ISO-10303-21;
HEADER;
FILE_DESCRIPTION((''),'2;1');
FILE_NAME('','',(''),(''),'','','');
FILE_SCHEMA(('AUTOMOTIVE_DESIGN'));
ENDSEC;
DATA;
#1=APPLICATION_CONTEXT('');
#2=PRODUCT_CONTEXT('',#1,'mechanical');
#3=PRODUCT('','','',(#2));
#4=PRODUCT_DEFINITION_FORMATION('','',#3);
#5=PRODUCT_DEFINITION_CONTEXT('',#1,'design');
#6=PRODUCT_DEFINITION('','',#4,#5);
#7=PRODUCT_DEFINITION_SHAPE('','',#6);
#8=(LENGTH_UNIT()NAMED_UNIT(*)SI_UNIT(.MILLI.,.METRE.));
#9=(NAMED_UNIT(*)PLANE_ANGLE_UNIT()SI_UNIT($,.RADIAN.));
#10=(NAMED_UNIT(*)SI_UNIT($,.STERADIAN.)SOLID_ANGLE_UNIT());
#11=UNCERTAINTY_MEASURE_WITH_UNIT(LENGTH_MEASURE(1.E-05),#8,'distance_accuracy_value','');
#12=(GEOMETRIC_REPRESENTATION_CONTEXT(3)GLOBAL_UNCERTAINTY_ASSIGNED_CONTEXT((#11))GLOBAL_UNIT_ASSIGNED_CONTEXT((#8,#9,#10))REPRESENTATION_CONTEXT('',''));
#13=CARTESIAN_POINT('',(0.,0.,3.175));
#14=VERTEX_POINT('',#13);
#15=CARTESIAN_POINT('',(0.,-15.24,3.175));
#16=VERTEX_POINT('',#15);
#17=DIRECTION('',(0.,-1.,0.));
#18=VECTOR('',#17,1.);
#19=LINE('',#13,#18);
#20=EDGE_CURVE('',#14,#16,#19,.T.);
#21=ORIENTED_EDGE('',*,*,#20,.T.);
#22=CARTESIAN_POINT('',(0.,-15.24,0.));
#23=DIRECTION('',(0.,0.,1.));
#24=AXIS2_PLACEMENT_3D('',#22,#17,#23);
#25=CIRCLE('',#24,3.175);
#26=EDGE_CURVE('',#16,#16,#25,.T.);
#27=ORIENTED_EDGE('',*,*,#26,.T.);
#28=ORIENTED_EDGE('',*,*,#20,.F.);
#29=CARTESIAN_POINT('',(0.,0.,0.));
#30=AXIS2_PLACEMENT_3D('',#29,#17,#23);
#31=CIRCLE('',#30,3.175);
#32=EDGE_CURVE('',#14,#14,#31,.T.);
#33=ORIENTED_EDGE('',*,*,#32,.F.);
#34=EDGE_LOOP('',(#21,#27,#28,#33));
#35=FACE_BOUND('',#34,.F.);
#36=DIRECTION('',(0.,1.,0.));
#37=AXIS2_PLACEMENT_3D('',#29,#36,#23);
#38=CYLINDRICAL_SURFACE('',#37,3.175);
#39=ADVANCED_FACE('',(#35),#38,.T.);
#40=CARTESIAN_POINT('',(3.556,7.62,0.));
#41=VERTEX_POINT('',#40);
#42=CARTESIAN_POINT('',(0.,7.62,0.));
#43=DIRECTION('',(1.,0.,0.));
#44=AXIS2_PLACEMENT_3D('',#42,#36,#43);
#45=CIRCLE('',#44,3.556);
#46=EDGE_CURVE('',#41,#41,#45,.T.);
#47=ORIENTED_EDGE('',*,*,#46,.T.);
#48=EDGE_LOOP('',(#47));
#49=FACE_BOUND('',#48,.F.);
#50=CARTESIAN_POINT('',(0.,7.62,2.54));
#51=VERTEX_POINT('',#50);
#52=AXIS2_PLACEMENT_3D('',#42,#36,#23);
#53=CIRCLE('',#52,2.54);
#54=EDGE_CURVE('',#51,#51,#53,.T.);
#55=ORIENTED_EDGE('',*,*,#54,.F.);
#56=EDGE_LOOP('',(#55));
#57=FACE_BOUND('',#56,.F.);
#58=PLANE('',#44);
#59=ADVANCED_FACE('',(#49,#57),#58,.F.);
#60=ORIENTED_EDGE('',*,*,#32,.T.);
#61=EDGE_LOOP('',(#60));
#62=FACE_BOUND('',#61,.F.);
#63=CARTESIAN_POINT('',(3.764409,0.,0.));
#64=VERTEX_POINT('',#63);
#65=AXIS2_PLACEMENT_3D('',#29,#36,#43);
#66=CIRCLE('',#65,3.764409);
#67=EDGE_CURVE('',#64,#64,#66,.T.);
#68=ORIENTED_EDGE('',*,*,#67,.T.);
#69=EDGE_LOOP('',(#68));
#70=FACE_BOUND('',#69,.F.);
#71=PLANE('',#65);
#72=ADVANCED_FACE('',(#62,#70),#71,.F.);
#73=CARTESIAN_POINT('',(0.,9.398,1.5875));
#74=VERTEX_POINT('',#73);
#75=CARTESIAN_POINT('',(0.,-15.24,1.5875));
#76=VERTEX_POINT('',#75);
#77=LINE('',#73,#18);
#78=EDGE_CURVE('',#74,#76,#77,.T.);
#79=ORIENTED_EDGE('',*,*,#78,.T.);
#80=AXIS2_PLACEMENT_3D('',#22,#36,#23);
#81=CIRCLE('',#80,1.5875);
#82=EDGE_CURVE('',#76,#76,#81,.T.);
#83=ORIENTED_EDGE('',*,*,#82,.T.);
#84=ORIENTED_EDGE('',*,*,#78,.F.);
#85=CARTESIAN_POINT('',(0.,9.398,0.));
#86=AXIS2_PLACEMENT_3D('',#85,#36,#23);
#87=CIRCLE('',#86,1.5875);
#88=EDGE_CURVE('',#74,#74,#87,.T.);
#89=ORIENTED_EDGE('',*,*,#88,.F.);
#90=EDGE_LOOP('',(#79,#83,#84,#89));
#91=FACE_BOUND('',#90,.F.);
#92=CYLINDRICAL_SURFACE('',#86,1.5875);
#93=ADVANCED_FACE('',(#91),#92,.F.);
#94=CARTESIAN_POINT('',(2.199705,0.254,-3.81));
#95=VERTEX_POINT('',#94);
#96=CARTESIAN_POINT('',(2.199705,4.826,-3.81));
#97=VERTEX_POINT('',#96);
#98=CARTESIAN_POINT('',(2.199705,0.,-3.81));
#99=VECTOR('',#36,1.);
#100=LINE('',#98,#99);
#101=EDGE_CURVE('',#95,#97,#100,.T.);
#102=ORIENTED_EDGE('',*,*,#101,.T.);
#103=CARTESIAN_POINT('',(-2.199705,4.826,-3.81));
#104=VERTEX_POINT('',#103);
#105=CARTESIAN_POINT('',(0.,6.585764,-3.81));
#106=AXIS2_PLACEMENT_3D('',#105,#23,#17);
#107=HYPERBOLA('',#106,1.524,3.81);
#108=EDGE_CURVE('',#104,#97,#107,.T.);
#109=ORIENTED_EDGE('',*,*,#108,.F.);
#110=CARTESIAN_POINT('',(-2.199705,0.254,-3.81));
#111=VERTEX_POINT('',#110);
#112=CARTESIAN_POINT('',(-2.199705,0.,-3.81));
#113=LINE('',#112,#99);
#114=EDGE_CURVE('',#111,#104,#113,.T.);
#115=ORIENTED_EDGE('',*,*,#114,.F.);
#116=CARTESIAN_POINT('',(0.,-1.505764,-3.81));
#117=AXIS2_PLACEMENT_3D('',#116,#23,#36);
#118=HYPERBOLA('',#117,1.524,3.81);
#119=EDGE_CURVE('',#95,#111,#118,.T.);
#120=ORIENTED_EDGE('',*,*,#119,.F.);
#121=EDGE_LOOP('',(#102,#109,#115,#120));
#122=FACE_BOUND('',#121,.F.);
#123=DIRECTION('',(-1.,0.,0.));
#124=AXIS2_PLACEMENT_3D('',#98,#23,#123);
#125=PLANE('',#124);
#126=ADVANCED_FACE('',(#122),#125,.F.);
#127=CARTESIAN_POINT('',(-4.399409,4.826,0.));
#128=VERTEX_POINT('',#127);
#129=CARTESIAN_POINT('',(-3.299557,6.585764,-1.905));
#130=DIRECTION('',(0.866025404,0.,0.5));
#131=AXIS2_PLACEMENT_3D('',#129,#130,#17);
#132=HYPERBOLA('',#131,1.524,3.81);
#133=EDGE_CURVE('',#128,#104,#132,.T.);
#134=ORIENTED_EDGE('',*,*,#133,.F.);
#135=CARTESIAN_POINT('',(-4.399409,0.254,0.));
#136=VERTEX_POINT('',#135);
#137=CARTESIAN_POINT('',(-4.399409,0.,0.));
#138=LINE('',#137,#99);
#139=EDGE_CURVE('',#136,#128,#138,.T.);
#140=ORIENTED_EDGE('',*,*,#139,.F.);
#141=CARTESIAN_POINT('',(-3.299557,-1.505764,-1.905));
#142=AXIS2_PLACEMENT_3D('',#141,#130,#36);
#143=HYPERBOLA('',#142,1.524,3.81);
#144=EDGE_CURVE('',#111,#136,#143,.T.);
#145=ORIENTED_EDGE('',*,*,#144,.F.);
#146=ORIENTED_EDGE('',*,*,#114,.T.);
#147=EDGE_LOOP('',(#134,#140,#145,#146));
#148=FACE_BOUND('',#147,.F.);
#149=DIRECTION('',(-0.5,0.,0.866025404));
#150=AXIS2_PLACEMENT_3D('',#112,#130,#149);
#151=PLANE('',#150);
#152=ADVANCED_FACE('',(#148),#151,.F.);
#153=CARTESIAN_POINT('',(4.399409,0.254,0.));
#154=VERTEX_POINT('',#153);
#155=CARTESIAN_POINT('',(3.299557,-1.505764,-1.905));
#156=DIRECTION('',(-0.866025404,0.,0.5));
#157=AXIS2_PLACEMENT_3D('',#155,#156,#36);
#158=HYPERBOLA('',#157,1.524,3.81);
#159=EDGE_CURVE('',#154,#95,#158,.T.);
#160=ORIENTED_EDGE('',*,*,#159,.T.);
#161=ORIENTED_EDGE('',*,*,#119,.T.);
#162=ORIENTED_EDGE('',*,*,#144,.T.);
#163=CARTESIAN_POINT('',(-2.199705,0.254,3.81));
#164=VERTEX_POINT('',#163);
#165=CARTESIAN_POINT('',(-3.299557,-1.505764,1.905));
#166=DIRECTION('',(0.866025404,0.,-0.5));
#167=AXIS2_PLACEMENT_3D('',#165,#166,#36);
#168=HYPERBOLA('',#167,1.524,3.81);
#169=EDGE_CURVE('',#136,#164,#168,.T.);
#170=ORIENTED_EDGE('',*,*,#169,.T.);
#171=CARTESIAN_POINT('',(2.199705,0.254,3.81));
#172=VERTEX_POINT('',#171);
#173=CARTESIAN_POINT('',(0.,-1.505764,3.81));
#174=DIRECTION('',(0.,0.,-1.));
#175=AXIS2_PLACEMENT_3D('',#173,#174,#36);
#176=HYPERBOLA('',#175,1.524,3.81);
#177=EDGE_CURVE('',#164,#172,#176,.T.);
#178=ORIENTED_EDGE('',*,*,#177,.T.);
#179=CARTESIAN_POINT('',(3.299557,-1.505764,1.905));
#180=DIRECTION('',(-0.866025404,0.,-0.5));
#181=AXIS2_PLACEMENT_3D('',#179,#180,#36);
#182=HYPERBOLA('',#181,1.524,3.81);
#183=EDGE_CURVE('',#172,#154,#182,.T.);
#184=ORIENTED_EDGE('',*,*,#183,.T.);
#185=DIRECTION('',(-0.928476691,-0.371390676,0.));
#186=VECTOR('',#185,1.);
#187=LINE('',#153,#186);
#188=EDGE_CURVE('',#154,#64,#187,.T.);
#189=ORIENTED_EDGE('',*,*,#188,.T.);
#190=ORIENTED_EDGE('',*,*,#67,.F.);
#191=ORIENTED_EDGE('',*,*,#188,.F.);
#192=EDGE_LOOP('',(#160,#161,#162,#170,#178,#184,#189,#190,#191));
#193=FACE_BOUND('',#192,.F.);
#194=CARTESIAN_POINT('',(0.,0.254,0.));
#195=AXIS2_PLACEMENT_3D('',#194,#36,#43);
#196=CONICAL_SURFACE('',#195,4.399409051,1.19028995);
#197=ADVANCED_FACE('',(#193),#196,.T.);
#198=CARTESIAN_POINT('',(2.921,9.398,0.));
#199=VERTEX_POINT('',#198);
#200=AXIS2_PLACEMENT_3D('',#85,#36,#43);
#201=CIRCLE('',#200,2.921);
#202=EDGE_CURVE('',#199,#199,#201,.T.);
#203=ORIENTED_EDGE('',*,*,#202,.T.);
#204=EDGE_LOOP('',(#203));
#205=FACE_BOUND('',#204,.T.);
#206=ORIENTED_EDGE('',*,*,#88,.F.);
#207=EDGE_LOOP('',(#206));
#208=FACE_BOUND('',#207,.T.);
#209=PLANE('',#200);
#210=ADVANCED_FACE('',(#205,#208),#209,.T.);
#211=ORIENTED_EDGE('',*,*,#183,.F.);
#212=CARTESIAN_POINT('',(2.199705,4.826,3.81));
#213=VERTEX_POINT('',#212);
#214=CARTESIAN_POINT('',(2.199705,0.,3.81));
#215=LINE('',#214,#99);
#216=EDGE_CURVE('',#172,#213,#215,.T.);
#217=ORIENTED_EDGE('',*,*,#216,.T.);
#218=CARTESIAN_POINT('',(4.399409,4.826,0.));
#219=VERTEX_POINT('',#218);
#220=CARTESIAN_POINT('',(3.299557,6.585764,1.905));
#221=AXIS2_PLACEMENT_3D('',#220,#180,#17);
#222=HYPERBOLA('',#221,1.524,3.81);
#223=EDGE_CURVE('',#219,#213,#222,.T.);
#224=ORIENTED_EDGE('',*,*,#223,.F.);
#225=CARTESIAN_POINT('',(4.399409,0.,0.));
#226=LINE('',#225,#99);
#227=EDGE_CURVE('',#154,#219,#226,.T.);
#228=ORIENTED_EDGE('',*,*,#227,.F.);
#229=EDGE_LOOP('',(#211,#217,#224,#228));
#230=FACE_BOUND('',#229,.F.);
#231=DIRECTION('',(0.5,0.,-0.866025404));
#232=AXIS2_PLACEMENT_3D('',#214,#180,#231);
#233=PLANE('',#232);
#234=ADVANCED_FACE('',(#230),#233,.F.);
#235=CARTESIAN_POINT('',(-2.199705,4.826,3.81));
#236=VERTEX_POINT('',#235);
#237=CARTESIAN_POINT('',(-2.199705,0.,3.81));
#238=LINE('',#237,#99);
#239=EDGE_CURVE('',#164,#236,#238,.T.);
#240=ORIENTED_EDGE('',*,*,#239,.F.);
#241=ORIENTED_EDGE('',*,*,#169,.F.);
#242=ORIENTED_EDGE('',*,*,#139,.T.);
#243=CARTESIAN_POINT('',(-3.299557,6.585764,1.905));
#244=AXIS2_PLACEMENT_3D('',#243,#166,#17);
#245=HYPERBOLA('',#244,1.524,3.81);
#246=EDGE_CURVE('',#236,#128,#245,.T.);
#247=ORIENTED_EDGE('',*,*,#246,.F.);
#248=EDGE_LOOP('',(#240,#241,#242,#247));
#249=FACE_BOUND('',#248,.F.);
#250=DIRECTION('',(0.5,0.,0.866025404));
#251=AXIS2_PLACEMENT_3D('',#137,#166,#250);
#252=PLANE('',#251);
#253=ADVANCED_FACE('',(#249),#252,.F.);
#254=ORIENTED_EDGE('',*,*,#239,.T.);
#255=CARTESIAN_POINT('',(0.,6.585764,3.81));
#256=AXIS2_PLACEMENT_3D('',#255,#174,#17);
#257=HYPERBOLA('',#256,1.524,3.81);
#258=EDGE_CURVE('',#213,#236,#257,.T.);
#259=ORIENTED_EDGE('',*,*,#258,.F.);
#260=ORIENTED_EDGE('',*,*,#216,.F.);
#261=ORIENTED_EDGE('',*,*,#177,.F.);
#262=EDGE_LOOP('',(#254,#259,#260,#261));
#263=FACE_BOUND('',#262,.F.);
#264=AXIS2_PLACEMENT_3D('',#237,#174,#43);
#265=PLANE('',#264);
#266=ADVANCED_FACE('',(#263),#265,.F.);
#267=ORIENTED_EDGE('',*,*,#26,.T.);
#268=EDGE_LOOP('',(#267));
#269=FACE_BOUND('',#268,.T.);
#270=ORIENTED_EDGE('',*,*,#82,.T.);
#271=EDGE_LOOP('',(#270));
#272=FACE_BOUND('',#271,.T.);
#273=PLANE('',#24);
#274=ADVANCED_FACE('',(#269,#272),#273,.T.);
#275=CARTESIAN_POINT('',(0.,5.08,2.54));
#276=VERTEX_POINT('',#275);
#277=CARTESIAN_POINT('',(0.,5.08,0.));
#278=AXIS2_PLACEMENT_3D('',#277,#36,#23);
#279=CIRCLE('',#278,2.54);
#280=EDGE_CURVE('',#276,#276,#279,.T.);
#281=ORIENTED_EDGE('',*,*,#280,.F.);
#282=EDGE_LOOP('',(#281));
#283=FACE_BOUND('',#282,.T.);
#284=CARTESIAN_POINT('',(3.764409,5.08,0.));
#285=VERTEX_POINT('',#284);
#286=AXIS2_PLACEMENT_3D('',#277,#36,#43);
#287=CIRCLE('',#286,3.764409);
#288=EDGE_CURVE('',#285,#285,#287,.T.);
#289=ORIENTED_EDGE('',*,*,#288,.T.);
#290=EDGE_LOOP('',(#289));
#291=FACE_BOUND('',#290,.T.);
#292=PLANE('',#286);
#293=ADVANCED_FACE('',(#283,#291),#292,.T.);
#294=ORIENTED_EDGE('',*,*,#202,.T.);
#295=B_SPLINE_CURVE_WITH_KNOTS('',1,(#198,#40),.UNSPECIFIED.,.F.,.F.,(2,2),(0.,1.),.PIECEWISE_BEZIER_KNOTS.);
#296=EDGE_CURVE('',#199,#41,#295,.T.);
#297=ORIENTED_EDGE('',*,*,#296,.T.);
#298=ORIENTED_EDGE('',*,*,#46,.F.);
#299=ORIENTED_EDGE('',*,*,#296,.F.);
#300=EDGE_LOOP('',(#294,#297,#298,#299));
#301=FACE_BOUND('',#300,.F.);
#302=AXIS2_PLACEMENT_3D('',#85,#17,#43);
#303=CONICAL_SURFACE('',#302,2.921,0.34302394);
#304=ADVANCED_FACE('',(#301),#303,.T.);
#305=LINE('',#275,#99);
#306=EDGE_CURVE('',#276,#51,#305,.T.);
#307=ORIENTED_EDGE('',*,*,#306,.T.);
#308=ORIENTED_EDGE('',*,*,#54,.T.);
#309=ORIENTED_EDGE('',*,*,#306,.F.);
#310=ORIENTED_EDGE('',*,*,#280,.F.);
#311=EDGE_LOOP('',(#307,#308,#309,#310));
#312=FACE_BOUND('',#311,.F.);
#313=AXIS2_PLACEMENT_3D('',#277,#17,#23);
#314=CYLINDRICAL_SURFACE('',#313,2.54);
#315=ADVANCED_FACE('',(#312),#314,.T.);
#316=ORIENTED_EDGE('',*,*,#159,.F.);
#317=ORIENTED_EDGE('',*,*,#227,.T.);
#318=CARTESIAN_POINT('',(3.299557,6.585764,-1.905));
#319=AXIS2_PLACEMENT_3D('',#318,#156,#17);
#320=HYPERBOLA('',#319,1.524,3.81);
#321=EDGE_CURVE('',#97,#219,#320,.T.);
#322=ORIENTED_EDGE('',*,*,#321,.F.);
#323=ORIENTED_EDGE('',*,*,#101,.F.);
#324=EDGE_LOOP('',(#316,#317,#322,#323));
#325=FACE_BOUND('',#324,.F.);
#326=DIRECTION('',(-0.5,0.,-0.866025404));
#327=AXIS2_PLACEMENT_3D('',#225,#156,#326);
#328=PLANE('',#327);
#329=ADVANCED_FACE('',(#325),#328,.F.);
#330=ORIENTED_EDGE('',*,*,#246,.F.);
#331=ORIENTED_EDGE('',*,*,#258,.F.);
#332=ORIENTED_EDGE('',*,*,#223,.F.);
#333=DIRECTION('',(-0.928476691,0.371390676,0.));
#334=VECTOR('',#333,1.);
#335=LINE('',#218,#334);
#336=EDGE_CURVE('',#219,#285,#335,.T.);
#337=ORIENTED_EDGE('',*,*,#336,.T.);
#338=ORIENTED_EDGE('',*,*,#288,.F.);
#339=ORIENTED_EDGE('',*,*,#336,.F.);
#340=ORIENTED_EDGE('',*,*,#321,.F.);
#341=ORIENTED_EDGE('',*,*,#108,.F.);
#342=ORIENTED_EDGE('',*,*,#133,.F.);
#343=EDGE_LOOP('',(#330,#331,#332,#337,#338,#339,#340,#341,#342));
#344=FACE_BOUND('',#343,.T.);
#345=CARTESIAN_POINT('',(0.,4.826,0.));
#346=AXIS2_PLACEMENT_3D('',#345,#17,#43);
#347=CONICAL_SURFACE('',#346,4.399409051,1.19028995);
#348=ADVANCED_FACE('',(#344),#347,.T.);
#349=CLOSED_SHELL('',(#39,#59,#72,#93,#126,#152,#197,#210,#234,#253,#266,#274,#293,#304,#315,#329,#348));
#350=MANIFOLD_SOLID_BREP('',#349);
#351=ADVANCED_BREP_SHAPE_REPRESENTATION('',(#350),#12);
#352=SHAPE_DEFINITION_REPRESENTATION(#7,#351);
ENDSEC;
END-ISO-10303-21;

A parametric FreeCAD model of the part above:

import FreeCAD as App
import Part
import Sketcher
from FreeCAD import Vector
Q = App.Units.Quantity


def add_polygon(sketch, points):
    """Adds a closed chain of lines whose ends are joined by coincident constraints."""
    first, n = sketch.GeometryCount, len(points)
    for a, b in zip(points, points[1:] + points[:1]):
        sketch.addGeometry(Part.LineSegment(App.Vector(*a, 0), App.Vector(*b, 0)), False)
    for i in range(n):
        sketch.addConstraint(Sketcher.Constraint("Coincident", first + i, 2, first + (i + 1) % n, 1))

doc = App.newDocument("Part")
body = doc.addObject("PartDesign::Body", "Body")

sketch1 = body.newObject("Sketcher::SketchObject", "Sketch")
sketch1.AttachmentSupport = (doc.getObject("XZ_Plane"), [""])
sketch1.MapMode = "FlatFace"
add_polygon(sketch1, [(2.2, -3.8), (-2.2, -3.8), (-4.4, 0), (-2.2, 3.8), (2.2, 3.8), (4.4, 0)])
sketch1.addConstraint(Sketcher.Constraint("Horizontal", 0))
sketch1.addConstraint(Sketcher.Constraint("Horizontal", 3))
sketch1.addConstraint(Sketcher.Constraint("Symmetric", 0, 2, 3, 2, -1, 1))
sketch1.addConstraint(Sketcher.Constraint("Symmetric", 1, 2, 4, 2, -1, 1))
sketch1.addConstraint(Sketcher.Constraint("PointOnObject", 1, 2, -1))
sketch1.addConstraint(Sketcher.Constraint("Parallel", 2, 5))
sketch1.addConstraint(Sketcher.Constraint("Vertical", 0, 2, 2, 2))
sketch1.addConstraint(Sketcher.Constraint("Angle", 1, Q("120 deg")))
sketch1.addConstraint(Sketcher.Constraint("DistanceY", 0, 2, 2, 2, Q("0.3 in")))
sketch1.addConstraint(Sketcher.Constraint("DistanceX", 0, 2, 0, 1, Q("4.399409 mm")))
pad1 = body.newObject("PartDesign::Pad", "Pad")
pad1.Profile = sketch1
pad1.Length = Q("0.2 in")
pad1.Reversed = True

sketch2 = body.newObject("Sketcher::SketchObject", "Sketch001")
sketch2.AttachmentSupport = (doc.getObject("XZ_Plane"), [""])
sketch2.MapMode = "FlatFace"
sketch2.AttachmentOffset = App.Placement(Vector(0, 0, -0.2 * 25.4), App.Rotation())
sketch2.addGeometry(Part.Circle(Vector(0, 0, 0), Vector(0, 0, 1), 2.5), False)
sketch2.addConstraint(Sketcher.Constraint("Coincident", 0, 3, -1, 1))
sketch2.addConstraint(Sketcher.Constraint("Diameter", 0, Q("0.2 in")))
pad2 = body.newObject("PartDesign::Pad", "Pad001")
pad2.Profile = sketch2
pad2.Length = Q("0.1 in")
pad2.Reversed = True

sketch3 = body.newObject("Sketcher::SketchObject", "Sketch002")
sketch3.AttachmentSupport = (doc.getObject("XZ_Plane"), [""])
sketch3.MapMode = "FlatFace"
sketch3.AttachmentOffset = App.Placement(Vector(0, 0, -0.37 * 25.4), App.Rotation())
sketch3.addGeometry(Part.Circle(Vector(0, 0, 0), Vector(0, 0, 1), 2.9), False)
sketch3.addConstraint(Sketcher.Constraint("Coincident", 0, 3, -1, 1))
sketch3.addConstraint(Sketcher.Constraint("Diameter", 0, Q("0.23 in")))

sketch4 = body.newObject("Sketcher::SketchObject", "Sketch003")
sketch4.AttachmentSupport = (doc.getObject("XZ_Plane"), [""])
sketch4.MapMode = "FlatFace"
sketch4.AttachmentOffset = App.Placement(Vector(0, 0, -0.3 * 25.4), App.Rotation())
sketch4.addGeometry(Part.Circle(Vector(0, 0, 0), Vector(0, 0, 1), 3.6), False)
sketch4.addConstraint(Sketcher.Constraint("Coincident", 0, 3, -1, 1))
sketch4.addConstraint(Sketcher.Constraint("Diameter", 0, Q("0.28 in")))

additiveloft = body.newObject("PartDesign::AdditiveLoft", "AdditiveLoft")
additiveloft.Profile = sketch3
additiveloft.Sections = [sketch4]

sketch5 = body.newObject("Sketcher::SketchObject", "Sketch004")
sketch5.AttachmentSupport = (doc.getObject("XY_Plane"), [""])
sketch5.MapMode = "FlatFace"
add_polygon(sketch5, [(3.76, 5.08), (4.4, 4.83), (4.4, 5.08)])
add_polygon(sketch5, [(4.4, 0), (4.4, 0.25), (3.76, 0)])
sketch5.addConstraint(Sketcher.Constraint("Vertical", 1))
sketch5.addConstraint(Sketcher.Constraint("Horizontal", 2))
sketch5.addConstraint(Sketcher.Constraint("Vertical", 3))
sketch5.addConstraint(Sketcher.Constraint("Horizontal", 5))
sketch5.addConstraint(Sketcher.Constraint("PointOnObject", 4, 2, -1))
sketch5.addConstraint(Sketcher.Constraint("Vertical", 1, 2, 3, 2))
sketch5.addConstraint(Sketcher.Constraint("Vertical", 2, 2, 4, 2))
sketch5.addConstraint(Sketcher.Constraint("Equal", 1, 3))
sketch5.addConstraint(Sketcher.Constraint("DistanceY", 1, 1, 1, 2, Q("0.01 in")))
sketch5.addConstraint(Sketcher.Constraint("DistanceY", -1, 1, 1, 2, Q("0.2 in")))
sketch5.addConstraint(Sketcher.Constraint("DistanceX", 2, 2, 2, 1, Q("0.025 in")))
sketch5.addConstraint(Sketcher.Constraint("DistanceX", -1, 1, 0, 2, Q("4.399409 mm")))
groove = body.newObject("PartDesign::Groove", "Groove")
groove.Profile = sketch5
groove.ReferenceAxis = (sketch5, ["V_Axis"])
groove.Angle = 360

sketch6 = body.newObject("Sketcher::SketchObject", "Sketch005")
sketch6.AttachmentSupport = (doc.getObject("XZ_Plane"), [""])
sketch6.MapMode = "FlatFace"
sketch6.addGeometry(Part.Circle(Vector(0, 0, 0), Vector(0, 0, 1), 3.2), False)
sketch6.addConstraint(Sketcher.Constraint("Coincident", 0, 3, -1, 1))
sketch6.addConstraint(Sketcher.Constraint("Diameter", 0, Q("0.25 in")))
pad3 = body.newObject("PartDesign::Pad", "Pad002")
pad3.Profile = sketch6
pad3.Length = Q("0.6 in")

sketch7 = body.newObject("Sketcher::SketchObject", "Sketch006")
sketch7.AttachmentSupport = (doc.getObject("XZ_Plane"), [""])
sketch7.MapMode = "FlatFace"
sketch7.AttachmentOffset = App.Placement(Vector(0, 0, -0.37 * 25.4), App.Rotation())
sketch7.addGeometry(Part.Circle(Vector(0, 0, 0), Vector(0, 0, 1), 1.6), False)
sketch7.addConstraint(Sketcher.Constraint("Coincident", 0, 3, -1, 1))
sketch7.addConstraint(Sketcher.Constraint("Diameter", 0, Q("0.125 in")))
pocket1 = body.newObject("PartDesign::Pocket", "Pocket")
pocket1.Profile = sketch7
pocket1.Type = "ThroughAll"
pocket1.Reversed = True

doc.recompute()
